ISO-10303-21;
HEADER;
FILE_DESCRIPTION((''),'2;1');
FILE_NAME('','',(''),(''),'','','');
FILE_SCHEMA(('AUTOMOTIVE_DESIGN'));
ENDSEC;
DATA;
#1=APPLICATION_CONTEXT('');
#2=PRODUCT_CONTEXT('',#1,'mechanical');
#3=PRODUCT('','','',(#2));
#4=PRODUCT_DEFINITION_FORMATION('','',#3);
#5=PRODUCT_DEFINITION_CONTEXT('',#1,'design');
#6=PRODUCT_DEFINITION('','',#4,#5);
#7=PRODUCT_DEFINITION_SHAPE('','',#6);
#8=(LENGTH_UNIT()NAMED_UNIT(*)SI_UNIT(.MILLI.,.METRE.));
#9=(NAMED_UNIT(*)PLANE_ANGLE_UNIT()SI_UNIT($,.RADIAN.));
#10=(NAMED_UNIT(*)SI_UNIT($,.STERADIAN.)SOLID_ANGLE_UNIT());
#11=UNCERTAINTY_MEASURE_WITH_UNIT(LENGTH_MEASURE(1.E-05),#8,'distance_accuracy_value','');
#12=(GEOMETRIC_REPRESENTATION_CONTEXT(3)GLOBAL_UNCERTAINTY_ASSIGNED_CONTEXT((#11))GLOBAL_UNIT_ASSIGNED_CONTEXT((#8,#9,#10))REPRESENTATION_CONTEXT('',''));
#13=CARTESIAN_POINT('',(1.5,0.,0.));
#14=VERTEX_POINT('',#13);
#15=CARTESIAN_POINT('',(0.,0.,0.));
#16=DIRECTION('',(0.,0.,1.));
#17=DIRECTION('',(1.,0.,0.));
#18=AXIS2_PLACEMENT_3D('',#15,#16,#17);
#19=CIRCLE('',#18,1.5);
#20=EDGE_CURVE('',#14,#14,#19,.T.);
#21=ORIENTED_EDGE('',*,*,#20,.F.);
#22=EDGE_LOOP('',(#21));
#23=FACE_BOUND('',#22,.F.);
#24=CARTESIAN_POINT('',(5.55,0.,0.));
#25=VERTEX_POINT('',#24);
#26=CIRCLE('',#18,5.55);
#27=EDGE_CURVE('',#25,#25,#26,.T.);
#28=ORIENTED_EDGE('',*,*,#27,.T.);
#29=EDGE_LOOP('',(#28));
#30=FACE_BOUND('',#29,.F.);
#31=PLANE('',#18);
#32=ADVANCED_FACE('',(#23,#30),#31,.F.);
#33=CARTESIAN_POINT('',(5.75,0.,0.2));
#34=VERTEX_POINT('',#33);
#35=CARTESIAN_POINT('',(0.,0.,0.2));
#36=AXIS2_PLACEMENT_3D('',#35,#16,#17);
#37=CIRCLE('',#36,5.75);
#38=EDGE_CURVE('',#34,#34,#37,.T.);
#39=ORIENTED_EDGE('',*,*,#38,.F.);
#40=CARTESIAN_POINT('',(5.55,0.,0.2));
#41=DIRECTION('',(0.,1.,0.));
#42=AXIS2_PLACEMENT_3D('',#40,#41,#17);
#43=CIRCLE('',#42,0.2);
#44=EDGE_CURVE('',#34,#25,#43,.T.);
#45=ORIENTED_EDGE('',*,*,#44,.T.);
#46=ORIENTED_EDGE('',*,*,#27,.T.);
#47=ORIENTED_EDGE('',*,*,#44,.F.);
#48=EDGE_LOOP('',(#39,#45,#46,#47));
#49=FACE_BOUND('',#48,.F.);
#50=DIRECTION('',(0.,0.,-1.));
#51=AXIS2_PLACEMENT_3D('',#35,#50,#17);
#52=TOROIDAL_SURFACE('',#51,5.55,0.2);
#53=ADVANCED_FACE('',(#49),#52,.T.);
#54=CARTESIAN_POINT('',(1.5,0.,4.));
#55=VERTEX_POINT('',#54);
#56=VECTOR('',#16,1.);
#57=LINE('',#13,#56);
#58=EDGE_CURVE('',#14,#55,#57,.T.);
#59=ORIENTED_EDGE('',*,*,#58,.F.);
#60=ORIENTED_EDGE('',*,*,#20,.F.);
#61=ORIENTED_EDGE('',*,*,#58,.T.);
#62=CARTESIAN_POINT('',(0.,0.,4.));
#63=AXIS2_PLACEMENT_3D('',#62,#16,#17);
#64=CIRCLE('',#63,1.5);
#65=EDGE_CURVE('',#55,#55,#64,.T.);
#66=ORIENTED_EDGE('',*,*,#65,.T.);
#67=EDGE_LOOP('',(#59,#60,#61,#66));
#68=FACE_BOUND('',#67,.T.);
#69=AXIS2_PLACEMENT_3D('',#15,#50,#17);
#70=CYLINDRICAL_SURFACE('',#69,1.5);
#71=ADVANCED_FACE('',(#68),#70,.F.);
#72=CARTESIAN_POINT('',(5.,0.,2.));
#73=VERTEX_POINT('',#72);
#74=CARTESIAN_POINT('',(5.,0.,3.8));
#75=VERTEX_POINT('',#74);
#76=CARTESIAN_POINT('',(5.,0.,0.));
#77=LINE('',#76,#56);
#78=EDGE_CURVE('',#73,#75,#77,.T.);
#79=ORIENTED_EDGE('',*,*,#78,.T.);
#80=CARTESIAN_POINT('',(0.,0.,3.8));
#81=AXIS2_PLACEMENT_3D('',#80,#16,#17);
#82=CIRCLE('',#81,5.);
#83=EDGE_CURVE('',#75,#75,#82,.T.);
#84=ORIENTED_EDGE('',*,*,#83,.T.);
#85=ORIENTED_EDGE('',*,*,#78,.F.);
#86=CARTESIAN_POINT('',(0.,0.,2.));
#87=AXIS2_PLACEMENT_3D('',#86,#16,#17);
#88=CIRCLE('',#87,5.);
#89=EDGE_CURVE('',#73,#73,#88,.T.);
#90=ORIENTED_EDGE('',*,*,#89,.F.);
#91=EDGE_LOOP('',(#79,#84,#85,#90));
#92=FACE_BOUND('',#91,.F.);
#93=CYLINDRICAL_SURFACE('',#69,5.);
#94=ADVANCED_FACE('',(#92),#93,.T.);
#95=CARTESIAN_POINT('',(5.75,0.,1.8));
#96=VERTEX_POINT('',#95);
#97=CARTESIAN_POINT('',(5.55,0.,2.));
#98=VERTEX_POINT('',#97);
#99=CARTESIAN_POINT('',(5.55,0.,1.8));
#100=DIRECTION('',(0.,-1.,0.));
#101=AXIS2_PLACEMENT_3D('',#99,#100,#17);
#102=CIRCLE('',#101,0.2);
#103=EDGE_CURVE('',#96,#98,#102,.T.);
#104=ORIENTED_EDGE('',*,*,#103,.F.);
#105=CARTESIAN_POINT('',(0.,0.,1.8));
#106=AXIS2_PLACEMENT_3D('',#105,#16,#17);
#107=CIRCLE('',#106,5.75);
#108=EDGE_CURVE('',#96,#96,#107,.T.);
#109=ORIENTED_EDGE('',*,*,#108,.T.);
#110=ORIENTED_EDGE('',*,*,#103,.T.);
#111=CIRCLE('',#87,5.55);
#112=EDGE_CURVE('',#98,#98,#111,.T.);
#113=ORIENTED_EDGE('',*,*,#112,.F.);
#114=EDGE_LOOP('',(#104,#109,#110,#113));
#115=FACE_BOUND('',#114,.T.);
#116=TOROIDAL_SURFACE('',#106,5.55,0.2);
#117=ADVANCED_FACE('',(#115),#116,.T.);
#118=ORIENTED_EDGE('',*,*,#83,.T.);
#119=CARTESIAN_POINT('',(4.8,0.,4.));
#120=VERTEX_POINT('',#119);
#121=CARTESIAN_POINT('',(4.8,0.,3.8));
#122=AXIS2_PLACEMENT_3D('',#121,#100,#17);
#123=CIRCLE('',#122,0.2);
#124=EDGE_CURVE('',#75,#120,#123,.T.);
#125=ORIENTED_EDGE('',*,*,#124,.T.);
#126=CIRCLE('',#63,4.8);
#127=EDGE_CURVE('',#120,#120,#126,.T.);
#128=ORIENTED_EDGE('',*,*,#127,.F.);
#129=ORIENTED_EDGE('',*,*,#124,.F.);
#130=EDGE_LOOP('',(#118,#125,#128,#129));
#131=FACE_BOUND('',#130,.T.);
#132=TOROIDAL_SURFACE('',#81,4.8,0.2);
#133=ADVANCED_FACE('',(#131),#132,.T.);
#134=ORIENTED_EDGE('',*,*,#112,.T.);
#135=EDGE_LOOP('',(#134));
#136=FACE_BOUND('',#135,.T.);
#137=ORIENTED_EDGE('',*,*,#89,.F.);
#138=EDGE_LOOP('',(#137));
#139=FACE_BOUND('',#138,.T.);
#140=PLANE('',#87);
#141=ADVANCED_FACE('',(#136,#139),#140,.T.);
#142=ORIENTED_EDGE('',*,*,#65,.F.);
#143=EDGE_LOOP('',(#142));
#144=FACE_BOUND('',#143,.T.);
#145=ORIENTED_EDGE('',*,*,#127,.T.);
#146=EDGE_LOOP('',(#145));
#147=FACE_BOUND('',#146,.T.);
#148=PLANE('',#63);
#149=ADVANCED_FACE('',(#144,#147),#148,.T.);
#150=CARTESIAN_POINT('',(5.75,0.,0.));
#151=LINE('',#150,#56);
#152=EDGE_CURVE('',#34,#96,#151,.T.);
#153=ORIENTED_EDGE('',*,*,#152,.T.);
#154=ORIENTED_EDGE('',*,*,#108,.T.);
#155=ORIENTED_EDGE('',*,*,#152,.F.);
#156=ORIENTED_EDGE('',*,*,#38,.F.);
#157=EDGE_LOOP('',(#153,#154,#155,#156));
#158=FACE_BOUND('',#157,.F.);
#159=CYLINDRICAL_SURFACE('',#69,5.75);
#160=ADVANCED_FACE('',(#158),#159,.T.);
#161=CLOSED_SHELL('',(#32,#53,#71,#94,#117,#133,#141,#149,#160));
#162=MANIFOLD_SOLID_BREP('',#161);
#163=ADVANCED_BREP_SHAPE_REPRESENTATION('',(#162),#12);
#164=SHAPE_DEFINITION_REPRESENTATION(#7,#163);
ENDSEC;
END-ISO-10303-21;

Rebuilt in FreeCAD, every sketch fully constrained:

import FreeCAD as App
import Part
import Sketcher
from FreeCAD import Vector


def edges_at(feature, points):
    """Names of the edges that pass closest to the given points."""
    edges = feature.Shape.Edges
    near = lambda p: min(range(len(edges)), key=lambda i: edges[i].distToShape(Part.Vertex(*p))[0])
    return sorted({f"Edge{near(p) + 1}" for p in points})

doc = App.newDocument("Part")
params = doc.addObject("Spreadsheet::Sheet", "Params")
for row, (alias, value) in enumerate([
    ("sketch1_diameter", "10 mm"),
    ("sketch1_diameter2", "3 mm"),
    ("pad1_length", "4 mm"),
    ("sketch2_diameter", "10 mm"),
    ("sketch2_diameter2", "11.5 mm"),
    ("pad2_length", "2 mm"),
    ("fillet_radius", "0.2 mm"),
], start=1):
    params.set(f"A{row}", alias)
    params.set(f"B{row}", "=" + value)
    params.setAlias(f"B{row}", alias)

body = doc.addObject("PartDesign::Body", "Body")

# Sketch on XY plane
sketch1 = body.newObject("Sketcher::SketchObject", "Sketch")
sketch1.AttachmentSupport = (doc.getObject("XY_Plane"), [""])
sketch1.MapMode = "FlatFace"
sketch1.addGeometry([
    Part.Circle(Vector(0, 0, 0), Vector(0, 0, 1), 5),
    Part.Circle(Vector(0, 0, 0), Vector(0, 0, 1), 1.5),
], False)
sketch1.addConstraint([
    Sketcher.Constraint("Coincident", 0, 3, -1, 1),
    Sketcher.Constraint("Coincident", 1, 3, -1, 1),
    Sketcher.Constraint("Diameter", 0, 10.0),
    Sketcher.Constraint("Diameter", 1, 3.0),
])
sketch1.setExpression("Constraints[2]", "Params.sketch1_diameter")
sketch1.setExpression("Constraints[3]", "Params.sketch1_diameter2")
pad1 = body.newObject("PartDesign::Pad", "Pad")
pad1.Profile = sketch1
pad1.setExpression("Length", "Params.pad1_length")

# Sketch on XY plane
sketch2 = body.newObject("Sketcher::SketchObject", "Sketch001")
sketch2.AttachmentSupport = (doc.getObject("XY_Plane"), [""])
sketch2.MapMode = "FlatFace"
sketch2.addGeometry([
    Part.Circle(Vector(0, 0, 0), Vector(0, 0, 1), 6),
    Part.Circle(Vector(0, 0, 0), Vector(0, 0, 1), 5),
], False)
sketch2.addConstraint([
    Sketcher.Constraint("Coincident", 0, 3, -1, 1),
    Sketcher.Constraint("Coincident", 1, 3, -1, 1),
    Sketcher.Constraint("Diameter", 1, 10.0),
    Sketcher.Constraint("Diameter", 0, 11.5),
])
sketch2.setExpression("Constraints[2]", "Params.sketch2_diameter")
sketch2.setExpression("Constraints[3]", "Params.sketch2_diameter2")
pad2 = body.newObject("PartDesign::Pad", "Pad001")
pad2.Profile = sketch2
pad2.setExpression("Length", "Params.pad2_length")
doc.recompute()

fillet = body.newObject("PartDesign::Fillet", "Fillet")
fillet.Base = (pad2, edges_at(pad2, [(-5, 0, 4), (-5.75, 0, 2), (-5.75, 0, 0)]))
fillet.setExpression("Radius", "Params.fillet_radius")

doc.recompute()
